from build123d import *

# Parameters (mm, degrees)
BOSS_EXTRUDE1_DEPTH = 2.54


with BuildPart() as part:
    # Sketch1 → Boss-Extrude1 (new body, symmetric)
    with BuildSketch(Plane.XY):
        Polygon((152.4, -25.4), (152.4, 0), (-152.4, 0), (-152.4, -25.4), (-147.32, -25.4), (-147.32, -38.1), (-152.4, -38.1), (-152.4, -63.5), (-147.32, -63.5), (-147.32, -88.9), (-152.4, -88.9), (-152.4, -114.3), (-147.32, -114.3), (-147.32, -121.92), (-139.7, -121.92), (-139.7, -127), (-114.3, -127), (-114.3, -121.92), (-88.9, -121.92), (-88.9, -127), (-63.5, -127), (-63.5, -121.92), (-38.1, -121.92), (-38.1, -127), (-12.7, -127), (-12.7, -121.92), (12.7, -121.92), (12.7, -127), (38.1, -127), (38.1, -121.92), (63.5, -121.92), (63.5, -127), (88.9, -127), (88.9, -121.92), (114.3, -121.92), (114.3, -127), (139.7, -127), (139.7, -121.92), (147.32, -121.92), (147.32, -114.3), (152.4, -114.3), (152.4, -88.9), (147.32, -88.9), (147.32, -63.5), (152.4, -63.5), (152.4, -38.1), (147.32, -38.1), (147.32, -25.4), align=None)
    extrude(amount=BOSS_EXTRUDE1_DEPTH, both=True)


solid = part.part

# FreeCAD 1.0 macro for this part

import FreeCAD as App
import Part
import Sketcher
Q = App.Units.Quantity


def add_polygon(sketch, points):
    """Adds a closed chain of lines whose ends are joined by coincident constraints."""
    first, n = sketch.GeometryCount, len(points)
    for a, b in zip(points, points[1:] + points[:1]):
        sketch.addGeometry(Part.LineSegment(App.Vector(*a, 0), App.Vector(*b, 0)), False)
    for i in range(n):
        sketch.addConstraint(Sketcher.Constraint("Coincident", first + i, 2, first + (i + 1) % n, 1))

doc = App.newDocument("Part")
body = doc.addObject("PartDesign::Body", "Body")

# Sketch on XY plane
sketch1 = body.newObject("Sketcher::SketchObject", "Sketch")
sketch1.AttachmentSupport = (doc.getObject("XY_Plane"), [""])
sketch1.MapMode = "FlatFace"
add_polygon(sketch1, [(152, -25), (152, 0), (-152, 0), (-152, -25), (-147, -25), (-147, -38), (-152, -38), (-152, -64), (-147, -64), (-147, -89), (-152, -89), (-152, -114), (-147, -114), (-147, -122), (-140, -122), (-140, -127), (-114, -127), (-114, -122), (-89, -122), (-89, -127), (-64, -127), (-64, -122), (-38, -122), (-38, -127), (-13, -127), (-13, -122), (13, -122), (13, -127), (38, -127), (38, -122), (64, -122), (64, -127), (89, -127), (89, -122), (114, -122), (114, -127), (140, -127), (140, -122), (147, -122), (147, -114), (152, -114), (152, -89), (147, -89), (147, -64), (152, -64), (152, -38), (147, -38), (147, -25)])  # lines 0-47
sketch1.addConstraint([
    Sketcher.Constraint("Vertical", 0),
    Sketcher.Constraint("Horizontal", 1),
    Sketcher.Constraint("Vertical", 2),
    Sketcher.Constraint("Horizontal", 3),
    Sketcher.Constraint("Vertical", 4),
    Sketcher.Constraint("Horizontal", 5),
    Sketcher.Constraint("Vertical", 6),
    Sketcher.Constraint("Horizontal", 7),
    Sketcher.Constraint("Vertical", 8),
    Sketcher.Constraint("Horizontal", 9),
    Sketcher.Constraint("Vertical", 10),
    Sketcher.Constraint("Horizontal", 11),
    Sketcher.Constraint("Vertical", 12),
    Sketcher.Constraint("Horizontal", 13),
    Sketcher.Constraint("Vertical", 14),
    Sketcher.Constraint("Horizontal", 15),
    Sketcher.Constraint("Vertical", 16),
    Sketcher.Constraint("Horizontal", 17),
    Sketcher.Constraint("Vertical", 18),
    Sketcher.Constraint("Horizontal", 19),
    Sketcher.Constraint("Vertical", 20),
    Sketcher.Constraint("Horizontal", 21),
    Sketcher.Constraint("Vertical", 22),
    Sketcher.Constraint("Horizontal", 23),
    Sketcher.Constraint("Vertical", 24),
    Sketcher.Constraint("Horizontal", 25),
    Sketcher.Constraint("Vertical", 26),
    Sketcher.Constraint("Horizontal", 27),
    Sketcher.Constraint("Vertical", 28),
    Sketcher.Constraint("Horizontal", 29),
    Sketcher.Constraint("Vertical", 30),
    Sketcher.Constraint("Horizontal", 31),
    Sketcher.Constraint("Vertical", 32),
    Sketcher.Constraint("Horizontal", 33),
    Sketcher.Constraint("Vertical", 34),
    Sketcher.Constraint("Horizontal", 35),
    Sketcher.Constraint("Vertical", 36),
    Sketcher.Constraint("Horizontal", 37),
    Sketcher.Constraint("Vertical", 38),
    Sketcher.Constraint("Horizontal", 39),
    Sketcher.Constraint("Vertical", 40),
    Sketcher.Constraint("Horizontal", 41),
    Sketcher.Constraint("Vertical", 42),
    Sketcher.Constraint("Horizontal", 43),
    Sketcher.Constraint("Vertical", 44),
    Sketcher.Constraint("Horizontal", 45),
    Sketcher.Constraint("Vertical", 46),
    Sketcher.Constraint("Horizontal", 47),
    Sketcher.Constraint("Symmetric", 0, 2, 1, 2, -1, 1),
    Sketcher.Constraint("Symmetric", 23, 2, 26, 2, -2),
    Sketcher.Constraint("Symmetric", 21, 2, 28, 2, -2),
    Sketcher.Constraint("Symmetric", 19, 2, 30, 2, -2),
    Sketcher.Constraint("Symmetric", 17, 2, 32, 2, -2),
    Sketcher.Constraint("Symmetric", 15, 2, 34, 2, -2),
    Sketcher.Constraint("Symmetric", 13, 2, 36, 2, -2),
    Sketcher.Constraint("Symmetric", 11, 2, 38, 2, -2),
    Sketcher.Constraint("Symmetric", 9, 2, 40, 2, -2),
    Sketcher.Constraint("Symmetric", 7, 2, 42, 2, -2),
    Sketcher.Constraint("Symmetric", 5, 2, 44, 2, -2),
    Sketcher.Constraint("Symmetric", 3, 2, 46, 2, -2),
    Sketcher.Constraint("Horizontal", 13, 2, 16, 2),
    Sketcher.Constraint("Horizontal", 15, 2, 18, 2),
    Sketcher.Constraint("Horizontal", 17, 2, 20, 2),
    Sketcher.Constraint("Horizontal", 19, 2, 22, 2),
    Sketcher.Constraint("Horizontal", 21, 2, 24, 2),
    Sketcher.Constraint("Vertical", 2, 2, 5, 2),
    Sketcher.Constraint("Vertical", 4, 2, 7, 2),
    Sketcher.Constraint("Vertical", 6, 2, 9, 2),
    Sketcher.Constraint("Vertical", 8, 2, 11, 2),
    Sketcher.Constraint("Equal", 15, 17),
    Sketcher.Constraint("Equal", 17, 19),
    Sketcher.Constraint("Equal", 19, 21),
    Sketcher.Constraint("Equal", 21, 23),
    Sketcher.Constraint("Equal", 23, 25),
    Sketcher.Constraint("Equal", 35, 0),
    Sketcher.Constraint("Equal", 2, 6),
    Sketcher.Constraint("Equal", 6, 8),
    Sketcher.Constraint("Equal", 8, 10),
    Sketcher.Constraint("Equal", 37, 12),
    Sketcher.Constraint("Equal", 47, 14),
    Sketcher.Constraint("DistanceX", 1, 2, 1, 1, Q("12 in")),
    Sketcher.Constraint("DistanceX", 15, 1, 15, 2, Q("1 in")),
    Sketcher.Constraint("DistanceX", 3, 1, 3, 2, Q("0.2 in")),
    Sketcher.Constraint("DistanceY", 4, 2, 4, 1, Q("0.5 in")),
])
pad1 = body.newObject("PartDesign::Pad", "Pad")
pad1.Profile = sketch1
pad1.Length = Q("0.2 in")
pad1.Midplane = True

doc.recompute()
